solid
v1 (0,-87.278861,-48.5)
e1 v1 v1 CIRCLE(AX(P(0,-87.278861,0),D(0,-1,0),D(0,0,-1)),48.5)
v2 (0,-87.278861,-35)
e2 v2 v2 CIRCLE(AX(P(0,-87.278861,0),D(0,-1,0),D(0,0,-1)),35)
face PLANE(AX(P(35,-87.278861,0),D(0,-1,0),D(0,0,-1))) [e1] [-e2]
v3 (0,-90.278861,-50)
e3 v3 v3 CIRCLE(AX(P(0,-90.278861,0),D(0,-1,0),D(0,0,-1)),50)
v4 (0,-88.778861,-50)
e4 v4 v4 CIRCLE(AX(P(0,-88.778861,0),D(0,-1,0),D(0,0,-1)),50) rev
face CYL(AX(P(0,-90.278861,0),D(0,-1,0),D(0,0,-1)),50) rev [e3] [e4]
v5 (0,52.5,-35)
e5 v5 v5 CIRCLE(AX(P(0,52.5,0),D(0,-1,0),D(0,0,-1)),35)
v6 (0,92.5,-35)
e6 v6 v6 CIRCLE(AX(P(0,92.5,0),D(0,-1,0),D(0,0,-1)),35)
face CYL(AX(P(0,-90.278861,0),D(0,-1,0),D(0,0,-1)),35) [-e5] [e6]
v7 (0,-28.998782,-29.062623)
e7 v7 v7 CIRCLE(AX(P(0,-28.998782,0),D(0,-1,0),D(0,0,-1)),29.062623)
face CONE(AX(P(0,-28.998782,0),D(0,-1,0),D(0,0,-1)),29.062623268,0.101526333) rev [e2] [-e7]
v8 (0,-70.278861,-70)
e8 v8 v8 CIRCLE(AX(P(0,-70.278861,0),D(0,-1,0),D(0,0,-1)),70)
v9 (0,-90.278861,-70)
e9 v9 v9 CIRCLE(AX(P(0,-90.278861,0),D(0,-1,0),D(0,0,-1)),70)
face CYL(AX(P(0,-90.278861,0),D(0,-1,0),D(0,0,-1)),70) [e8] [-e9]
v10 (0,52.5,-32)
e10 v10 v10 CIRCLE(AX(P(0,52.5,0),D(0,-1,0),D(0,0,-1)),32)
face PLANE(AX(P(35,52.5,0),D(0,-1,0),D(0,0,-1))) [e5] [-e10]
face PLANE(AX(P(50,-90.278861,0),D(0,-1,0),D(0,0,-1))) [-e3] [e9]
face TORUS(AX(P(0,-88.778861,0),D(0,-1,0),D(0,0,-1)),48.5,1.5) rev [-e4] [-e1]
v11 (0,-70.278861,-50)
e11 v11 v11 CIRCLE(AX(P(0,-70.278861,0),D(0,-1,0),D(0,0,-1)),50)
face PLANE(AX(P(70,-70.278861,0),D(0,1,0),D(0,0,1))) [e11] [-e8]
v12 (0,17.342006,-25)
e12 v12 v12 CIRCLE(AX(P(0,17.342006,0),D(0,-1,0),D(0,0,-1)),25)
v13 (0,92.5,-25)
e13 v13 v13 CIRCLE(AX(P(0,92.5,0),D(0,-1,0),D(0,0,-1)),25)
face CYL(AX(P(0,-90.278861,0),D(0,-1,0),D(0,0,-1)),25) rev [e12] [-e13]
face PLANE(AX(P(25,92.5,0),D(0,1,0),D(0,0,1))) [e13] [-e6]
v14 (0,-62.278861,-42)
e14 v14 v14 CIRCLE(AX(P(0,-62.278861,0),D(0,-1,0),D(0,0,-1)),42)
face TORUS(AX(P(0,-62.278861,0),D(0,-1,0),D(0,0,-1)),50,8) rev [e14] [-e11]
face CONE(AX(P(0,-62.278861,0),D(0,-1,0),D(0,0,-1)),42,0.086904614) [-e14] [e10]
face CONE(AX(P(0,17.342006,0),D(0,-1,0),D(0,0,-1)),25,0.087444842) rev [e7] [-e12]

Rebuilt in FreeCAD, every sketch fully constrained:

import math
import FreeCAD as App
import Part
import Sketcher

V = App.Vector


def edges_at(feature, points):
    """Names of the edges that pass closest to the given points."""
    edges = feature.Shape.Edges
    near = lambda p: min(range(len(edges)), key=lambda i: edges[i].distToShape(Part.Vertex(*p))[0])
    return sorted({f"Edge{near(p) + 1}" for p in points})

doc = App.newDocument("Part")
params = doc.addObject("Spreadsheet::Sheet", "Params")
for row, (alias, value) in enumerate([
    ("sketch1_radius", "8 mm"),
    ("sketch1_width", "15 mm"),
    ("sketch1_width2", "20 mm"),
    ("sketch1_width3", "3 mm"),
    ("sketch1_width4", "10 mm"),
    ("revolution_angle", "360 deg"),
    ("fillet_radius", "1.5 mm"),
], start=1):
    params.set(f"A{row}", alias)
    params.set(f"B{row}", "=" + value)
    params.setAlias(f"B{row}", alias)

body = doc.addObject("PartDesign::Body", "Body")

sketch1 = body.newObject("Sketcher::SketchObject", "Sketch")
sketch1.AttachmentSupport = (doc.getObject("XY_Plane"), [""])
sketch1.MapMode = "FlatFace"
sketch1.addGeometry([
    Part.LineSegment(V(29.1, -29, 0), V(35, -87.3, 0)),
    Part.LineSegment(V(35, -87.3, 0), V(50, -87.3, 0)),
    Part.LineSegment(V(50, -87.3, 0), V(50, -90.3, 0)),
    Part.LineSegment(V(50, -90.3, 0), V(70, -90.3, 0)),
    Part.LineSegment(V(70, -90.3, 0), V(70, -70.3, 0)),
    Part.LineSegment(V(70, -70.3, 0), V(50, -70.3, 0)),
    Part.ArcOfCircle(Part.Circle(V(50, -62.3, 0), V(0, 0, 1), 8), math.radians(-180), math.radians(-90)),
    Part.LineSegment(V(42, -62.3, 0), V(32, 52.5, 0)),
    Part.LineSegment(V(32, 52.5, 0), V(35, 52.5, 0)),
    Part.LineSegment(V(35, 52.5, 0), V(35, 92.5, 0)),
    Part.LineSegment(V(35, 92.5, 0), V(25, 92.5, 0)),
    Part.LineSegment(V(25, 92.5, 0), V(25, 17.3, 0)),
    Part.LineSegment(V(25, 17.3, 0), V(29.1, -29, 0)),
], False)
sketch1.addConstraint([
    Sketcher.Constraint("Coincident", 0, 2, 1, 1),
    Sketcher.Constraint("Coincident", 1, 2, 2, 1),
    Sketcher.Constraint("Coincident", 2, 2, 3, 1),
    Sketcher.Constraint("Coincident", 3, 2, 4, 1),
    Sketcher.Constraint("Coincident", 4, 2, 5, 1),
    Sketcher.Constraint("Tangent", 5, 2, 6, 2),
    Sketcher.Constraint("Coincident", 6, 1, 7, 1),
    Sketcher.Constraint("Coincident", 7, 2, 8, 1),
    Sketcher.Constraint("Coincident", 8, 2, 9, 1),
    Sketcher.Constraint("Coincident", 9, 2, 10, 1),
    Sketcher.Constraint("Coincident", 10, 2, 11, 1),
    Sketcher.Constraint("Coincident", 11, 2, 12, 1),
    Sketcher.Constraint("Coincident", 12, 2, 0, 1),
    Sketcher.Constraint("Horizontal", 1),
    Sketcher.Constraint("Vertical", 2),
    Sketcher.Constraint("Horizontal", 3),
    Sketcher.Constraint("Vertical", 4),
    Sketcher.Constraint("Horizontal", 5),
    Sketcher.Constraint("Horizontal", 8),
    Sketcher.Constraint("Vertical", 9),
    Sketcher.Constraint("Horizontal", 10),
    Sketcher.Constraint("Vertical", 11),
    Sketcher.Constraint("Vertical", 6, 3, 1, 2),
    Sketcher.Constraint("Vertical", 0, 2, 8, 2),
    Sketcher.Constraint("Equal", 8, 2),
    Sketcher.Constraint("Equal", 5, 4),
    Sketcher.Constraint("Radius", 6, 8.0),
    Sketcher.Constraint("DistanceX", 1, 1, 1, 2, 15.0),
    Sketcher.Constraint("DistanceX", 3, 1, 3, 2, 20.0),
    Sketcher.Constraint("DistanceX", 8, 1, 8, 2, 3.0),
    Sketcher.Constraint("DistanceX", 10, 2, 10, 1, 10.0),
    Sketcher.Constraint("DistanceY", 9, 1, 9, 2, 40.0),
    Sketcher.Constraint("DistanceX", -1, 1, 6, 3, 50.0),
    Sketcher.Constraint("DistanceY", 5, 2, 6, 1, 8.0),
    Sketcher.Constraint("DistanceY", -1, 1, 7, 2, 52.5),
    Sketcher.Constraint("Distance", 12, 46.518529),
    Sketcher.Constraint("DistanceY", 11, 2, 11, 1, 75.157994),
    Sketcher.Constraint("DistanceY", 6, 3, -1, 1, 62.278861),
    Sketcher.Constraint("DistanceY", 12, 2, -1, 1, 28.998782),
])
sketch1.setExpression("Constraints[26]", "Params.sketch1_radius")
sketch1.setExpression("Constraints[27]", "Params.sketch1_width")
sketch1.setExpression("Constraints[28]", "Params.sketch1_width2")
sketch1.setExpression("Constraints[29]", "Params.sketch1_width3")
sketch1.setExpression("Constraints[30]", "Params.sketch1_width4")
revolution = body.newObject("PartDesign::Revolution", "Revolution")
revolution.Profile = sketch1
revolution.ReferenceAxis = (sketch1, ["V_Axis"])
revolution.setExpression("Angle", "Params.revolution_angle")
doc.recompute()

fillet = body.newObject("PartDesign::Fillet", "Fillet")
fillet.Base = (revolution, edges_at(revolution, [(-50, -87.279, 0)]))
fillet.setExpression("Radius", "Params.fillet_radius")

doc.recompute()
